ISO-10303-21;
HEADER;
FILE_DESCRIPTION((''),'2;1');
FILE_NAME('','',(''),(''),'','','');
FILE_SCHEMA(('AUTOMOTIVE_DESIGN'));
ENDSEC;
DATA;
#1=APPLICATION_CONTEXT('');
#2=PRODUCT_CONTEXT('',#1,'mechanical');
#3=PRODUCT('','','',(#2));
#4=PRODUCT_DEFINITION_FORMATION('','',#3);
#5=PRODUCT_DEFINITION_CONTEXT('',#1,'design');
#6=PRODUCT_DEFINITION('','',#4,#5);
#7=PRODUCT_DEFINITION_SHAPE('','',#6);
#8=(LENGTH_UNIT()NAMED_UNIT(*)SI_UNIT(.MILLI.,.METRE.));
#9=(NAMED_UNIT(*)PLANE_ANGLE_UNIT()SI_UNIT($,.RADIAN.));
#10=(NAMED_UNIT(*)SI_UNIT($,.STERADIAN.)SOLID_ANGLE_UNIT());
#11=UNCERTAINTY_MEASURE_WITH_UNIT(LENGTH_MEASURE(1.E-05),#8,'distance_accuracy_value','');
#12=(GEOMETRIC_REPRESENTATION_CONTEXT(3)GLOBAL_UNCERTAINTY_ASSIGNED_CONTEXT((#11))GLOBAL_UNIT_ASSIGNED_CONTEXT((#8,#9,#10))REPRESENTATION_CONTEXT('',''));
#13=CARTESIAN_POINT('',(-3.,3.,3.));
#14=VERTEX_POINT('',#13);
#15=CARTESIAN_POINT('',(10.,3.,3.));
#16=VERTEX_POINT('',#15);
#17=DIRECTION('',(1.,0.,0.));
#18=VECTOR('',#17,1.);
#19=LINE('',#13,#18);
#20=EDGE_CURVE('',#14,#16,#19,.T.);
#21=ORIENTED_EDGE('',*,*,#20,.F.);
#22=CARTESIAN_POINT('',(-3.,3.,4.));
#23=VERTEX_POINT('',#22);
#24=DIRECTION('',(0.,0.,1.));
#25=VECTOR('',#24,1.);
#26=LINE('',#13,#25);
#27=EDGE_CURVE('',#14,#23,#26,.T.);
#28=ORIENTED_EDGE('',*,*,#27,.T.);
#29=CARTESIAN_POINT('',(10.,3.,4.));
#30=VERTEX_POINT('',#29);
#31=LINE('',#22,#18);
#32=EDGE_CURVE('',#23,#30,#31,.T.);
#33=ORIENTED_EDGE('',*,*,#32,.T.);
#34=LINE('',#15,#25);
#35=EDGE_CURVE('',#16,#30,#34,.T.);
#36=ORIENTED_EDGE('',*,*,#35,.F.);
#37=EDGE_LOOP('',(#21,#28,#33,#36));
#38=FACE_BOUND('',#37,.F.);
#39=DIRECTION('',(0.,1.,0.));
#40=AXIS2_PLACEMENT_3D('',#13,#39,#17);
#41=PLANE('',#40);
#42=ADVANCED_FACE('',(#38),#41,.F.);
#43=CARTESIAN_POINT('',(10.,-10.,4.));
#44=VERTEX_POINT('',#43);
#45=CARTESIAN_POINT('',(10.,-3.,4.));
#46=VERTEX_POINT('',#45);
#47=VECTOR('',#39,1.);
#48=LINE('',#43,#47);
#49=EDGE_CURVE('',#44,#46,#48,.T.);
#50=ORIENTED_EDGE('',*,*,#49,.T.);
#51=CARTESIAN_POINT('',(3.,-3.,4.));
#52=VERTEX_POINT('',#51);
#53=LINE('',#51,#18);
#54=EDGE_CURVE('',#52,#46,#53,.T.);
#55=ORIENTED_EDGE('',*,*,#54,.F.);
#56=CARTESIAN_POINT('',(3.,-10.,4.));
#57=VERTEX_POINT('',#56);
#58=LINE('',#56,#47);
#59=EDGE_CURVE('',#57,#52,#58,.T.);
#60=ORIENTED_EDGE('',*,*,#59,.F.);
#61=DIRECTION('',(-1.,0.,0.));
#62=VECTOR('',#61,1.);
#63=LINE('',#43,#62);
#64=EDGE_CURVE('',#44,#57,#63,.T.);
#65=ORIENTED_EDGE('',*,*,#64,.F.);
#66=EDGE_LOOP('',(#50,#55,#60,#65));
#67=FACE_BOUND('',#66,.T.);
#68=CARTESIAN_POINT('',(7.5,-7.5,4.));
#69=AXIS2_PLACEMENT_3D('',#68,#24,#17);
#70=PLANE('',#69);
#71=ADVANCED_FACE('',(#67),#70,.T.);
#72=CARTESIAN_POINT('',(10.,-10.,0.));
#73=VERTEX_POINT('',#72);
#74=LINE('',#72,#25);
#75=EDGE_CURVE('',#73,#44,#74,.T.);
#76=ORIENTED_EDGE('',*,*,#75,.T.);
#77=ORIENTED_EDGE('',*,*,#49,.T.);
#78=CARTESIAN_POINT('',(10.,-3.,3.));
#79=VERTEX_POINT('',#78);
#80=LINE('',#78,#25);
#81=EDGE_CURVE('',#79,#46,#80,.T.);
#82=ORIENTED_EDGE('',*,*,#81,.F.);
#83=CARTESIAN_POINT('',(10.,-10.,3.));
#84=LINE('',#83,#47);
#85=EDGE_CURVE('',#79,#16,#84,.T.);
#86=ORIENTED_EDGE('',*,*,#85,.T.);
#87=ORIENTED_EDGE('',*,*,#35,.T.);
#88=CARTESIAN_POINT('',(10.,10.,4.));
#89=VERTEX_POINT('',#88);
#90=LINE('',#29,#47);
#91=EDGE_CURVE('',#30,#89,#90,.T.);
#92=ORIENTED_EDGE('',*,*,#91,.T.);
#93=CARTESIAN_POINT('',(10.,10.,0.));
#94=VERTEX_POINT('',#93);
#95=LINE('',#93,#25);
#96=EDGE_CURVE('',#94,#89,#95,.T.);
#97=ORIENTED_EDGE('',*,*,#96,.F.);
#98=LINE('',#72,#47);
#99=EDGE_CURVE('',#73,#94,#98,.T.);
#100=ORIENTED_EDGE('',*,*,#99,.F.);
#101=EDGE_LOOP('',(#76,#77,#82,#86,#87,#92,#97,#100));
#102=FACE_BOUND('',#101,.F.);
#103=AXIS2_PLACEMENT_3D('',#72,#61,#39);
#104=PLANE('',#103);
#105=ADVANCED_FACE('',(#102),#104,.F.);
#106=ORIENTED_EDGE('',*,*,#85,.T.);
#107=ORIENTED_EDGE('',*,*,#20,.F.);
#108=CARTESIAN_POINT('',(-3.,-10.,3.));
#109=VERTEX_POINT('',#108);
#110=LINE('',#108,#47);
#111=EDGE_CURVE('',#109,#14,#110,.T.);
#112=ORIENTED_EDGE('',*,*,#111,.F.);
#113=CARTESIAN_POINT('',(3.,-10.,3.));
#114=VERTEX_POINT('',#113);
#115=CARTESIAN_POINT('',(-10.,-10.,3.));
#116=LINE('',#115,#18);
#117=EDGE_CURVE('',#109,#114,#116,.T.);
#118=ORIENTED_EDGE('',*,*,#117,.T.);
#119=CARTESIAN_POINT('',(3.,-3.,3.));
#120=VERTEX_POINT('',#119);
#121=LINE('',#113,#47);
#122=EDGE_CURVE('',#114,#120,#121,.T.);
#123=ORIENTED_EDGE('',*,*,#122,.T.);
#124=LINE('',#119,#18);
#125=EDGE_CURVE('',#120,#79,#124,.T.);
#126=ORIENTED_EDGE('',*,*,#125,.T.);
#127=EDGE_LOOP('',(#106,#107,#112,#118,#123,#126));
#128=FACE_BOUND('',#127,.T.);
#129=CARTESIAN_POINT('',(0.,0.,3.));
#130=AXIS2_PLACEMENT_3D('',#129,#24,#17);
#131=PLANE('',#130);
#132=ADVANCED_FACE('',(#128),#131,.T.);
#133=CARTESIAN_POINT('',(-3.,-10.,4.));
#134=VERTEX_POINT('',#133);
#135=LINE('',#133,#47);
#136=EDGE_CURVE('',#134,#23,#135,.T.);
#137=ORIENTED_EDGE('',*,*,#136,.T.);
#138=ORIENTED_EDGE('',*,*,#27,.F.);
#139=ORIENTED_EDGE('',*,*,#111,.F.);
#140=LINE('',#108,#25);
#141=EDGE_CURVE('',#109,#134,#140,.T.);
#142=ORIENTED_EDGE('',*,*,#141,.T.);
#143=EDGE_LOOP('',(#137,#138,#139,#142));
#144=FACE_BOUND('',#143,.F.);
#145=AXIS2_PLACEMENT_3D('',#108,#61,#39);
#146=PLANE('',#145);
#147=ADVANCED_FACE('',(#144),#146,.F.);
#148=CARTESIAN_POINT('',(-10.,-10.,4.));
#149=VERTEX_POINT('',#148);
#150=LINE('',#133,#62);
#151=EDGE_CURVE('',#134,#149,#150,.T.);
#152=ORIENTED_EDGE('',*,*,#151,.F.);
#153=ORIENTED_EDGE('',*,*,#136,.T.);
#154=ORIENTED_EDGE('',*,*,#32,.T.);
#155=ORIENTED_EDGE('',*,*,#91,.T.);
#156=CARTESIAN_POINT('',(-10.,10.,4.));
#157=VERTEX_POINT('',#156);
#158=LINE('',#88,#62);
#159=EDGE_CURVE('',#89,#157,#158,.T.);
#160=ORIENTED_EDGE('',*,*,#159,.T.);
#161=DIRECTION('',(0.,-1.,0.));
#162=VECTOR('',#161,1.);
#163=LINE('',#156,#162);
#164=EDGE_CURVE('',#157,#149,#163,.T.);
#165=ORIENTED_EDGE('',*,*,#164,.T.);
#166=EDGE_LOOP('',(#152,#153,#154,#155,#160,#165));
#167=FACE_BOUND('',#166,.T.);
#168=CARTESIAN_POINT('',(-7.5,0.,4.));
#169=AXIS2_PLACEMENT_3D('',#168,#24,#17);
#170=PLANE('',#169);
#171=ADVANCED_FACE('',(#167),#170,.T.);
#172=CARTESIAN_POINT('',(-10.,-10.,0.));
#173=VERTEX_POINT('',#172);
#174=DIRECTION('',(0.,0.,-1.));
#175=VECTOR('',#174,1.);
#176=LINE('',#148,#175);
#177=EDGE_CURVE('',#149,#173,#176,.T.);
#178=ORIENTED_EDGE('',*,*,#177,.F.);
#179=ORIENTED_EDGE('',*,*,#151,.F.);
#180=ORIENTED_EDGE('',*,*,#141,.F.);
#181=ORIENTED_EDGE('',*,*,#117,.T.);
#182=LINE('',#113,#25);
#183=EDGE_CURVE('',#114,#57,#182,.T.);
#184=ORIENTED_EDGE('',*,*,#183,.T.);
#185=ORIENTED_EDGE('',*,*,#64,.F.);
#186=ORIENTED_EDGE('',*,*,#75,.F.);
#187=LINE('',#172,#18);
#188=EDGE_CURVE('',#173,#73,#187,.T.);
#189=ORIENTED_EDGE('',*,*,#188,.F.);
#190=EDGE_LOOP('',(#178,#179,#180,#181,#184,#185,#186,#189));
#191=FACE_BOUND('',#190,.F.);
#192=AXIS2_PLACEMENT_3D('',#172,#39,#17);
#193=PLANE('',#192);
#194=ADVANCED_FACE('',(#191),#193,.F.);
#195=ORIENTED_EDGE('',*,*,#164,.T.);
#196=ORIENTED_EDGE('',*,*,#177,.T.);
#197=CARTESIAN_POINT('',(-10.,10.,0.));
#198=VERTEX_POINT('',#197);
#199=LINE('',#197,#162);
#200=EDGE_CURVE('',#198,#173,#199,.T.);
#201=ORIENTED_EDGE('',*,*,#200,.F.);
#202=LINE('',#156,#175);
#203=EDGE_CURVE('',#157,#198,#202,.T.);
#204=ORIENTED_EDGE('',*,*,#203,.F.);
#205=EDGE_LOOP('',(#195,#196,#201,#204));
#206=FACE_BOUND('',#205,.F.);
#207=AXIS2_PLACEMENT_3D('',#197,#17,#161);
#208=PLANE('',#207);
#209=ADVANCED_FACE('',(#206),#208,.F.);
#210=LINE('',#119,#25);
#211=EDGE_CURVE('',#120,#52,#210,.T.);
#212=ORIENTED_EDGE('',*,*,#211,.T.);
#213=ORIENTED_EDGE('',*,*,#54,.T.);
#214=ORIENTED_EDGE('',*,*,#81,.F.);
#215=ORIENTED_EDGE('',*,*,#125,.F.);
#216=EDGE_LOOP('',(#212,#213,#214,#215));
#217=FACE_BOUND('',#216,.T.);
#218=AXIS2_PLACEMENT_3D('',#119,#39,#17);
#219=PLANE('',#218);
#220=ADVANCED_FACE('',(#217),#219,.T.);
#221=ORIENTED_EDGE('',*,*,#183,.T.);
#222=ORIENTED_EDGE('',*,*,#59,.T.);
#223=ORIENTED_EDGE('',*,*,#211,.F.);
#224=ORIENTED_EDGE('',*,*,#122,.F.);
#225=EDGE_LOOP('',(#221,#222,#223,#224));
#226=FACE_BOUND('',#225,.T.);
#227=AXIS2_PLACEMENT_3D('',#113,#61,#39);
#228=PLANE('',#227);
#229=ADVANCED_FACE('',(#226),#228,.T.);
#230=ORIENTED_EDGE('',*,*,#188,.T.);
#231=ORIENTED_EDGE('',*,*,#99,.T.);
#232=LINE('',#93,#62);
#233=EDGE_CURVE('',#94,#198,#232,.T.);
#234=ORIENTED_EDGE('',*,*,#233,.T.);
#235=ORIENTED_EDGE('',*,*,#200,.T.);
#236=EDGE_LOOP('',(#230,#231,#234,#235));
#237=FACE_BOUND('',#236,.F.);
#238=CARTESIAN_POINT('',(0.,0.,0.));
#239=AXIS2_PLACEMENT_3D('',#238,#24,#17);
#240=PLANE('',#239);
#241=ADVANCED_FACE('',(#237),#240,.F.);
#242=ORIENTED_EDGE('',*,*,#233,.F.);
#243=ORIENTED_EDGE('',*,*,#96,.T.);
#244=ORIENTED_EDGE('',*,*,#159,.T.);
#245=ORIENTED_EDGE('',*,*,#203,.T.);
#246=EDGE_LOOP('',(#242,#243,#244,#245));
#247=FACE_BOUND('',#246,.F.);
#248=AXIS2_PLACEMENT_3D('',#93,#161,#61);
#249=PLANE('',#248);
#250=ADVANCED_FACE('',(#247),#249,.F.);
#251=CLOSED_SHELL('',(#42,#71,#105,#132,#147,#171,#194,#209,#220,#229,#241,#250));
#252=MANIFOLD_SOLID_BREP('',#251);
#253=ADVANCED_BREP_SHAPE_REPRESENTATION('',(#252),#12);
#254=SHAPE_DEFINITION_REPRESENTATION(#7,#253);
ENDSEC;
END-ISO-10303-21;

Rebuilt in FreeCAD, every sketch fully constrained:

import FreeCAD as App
import Part
import Sketcher
from FreeCAD import Vector
Q = App.Units.Quantity

doc = App.newDocument("Part")
body = doc.addObject("PartDesign::Body", "Body")

sketch1 = doc.addObject("Sketcher::SketchObject", "Sketch")
body.addObject(sketch1)
sketch1.AttachmentSupport = (doc.XY_Plane, [""])
sketch1.MapMode = "FlatFace"
sketch1.addGeometry([
    Part.LineSegment(Vector(-10, 10, 0), Vector(-10, -10, 0)),
    Part.LineSegment(Vector(-10, -10, 0), Vector(10, -10, 0)),
    Part.LineSegment(Vector(10, -10, 0), Vector(10, 10, 0)),
    Part.LineSegment(Vector(10, 10, 0), Vector(-10, 10, 0)),
], False)
sketch1.addConstraint([
    Sketcher.Constraint("Coincident", 0, 2, 1, 1),
    Sketcher.Constraint("Coincident", 1, 2, 2, 1),
    Sketcher.Constraint("Coincident", 2, 2, 3, 1),
    Sketcher.Constraint("Coincident", 3, 2, 0, 1),
    Sketcher.Constraint("Vertical", 0),
    Sketcher.Constraint("Horizontal", 1),
    Sketcher.Constraint("Vertical", 2),
    Sketcher.Constraint("Horizontal", 3),
    Sketcher.Constraint("Symmetric", 0, 2, 2, 2, -1, 1),
    Sketcher.Constraint("Equal", 3, 0),
    Sketcher.Constraint("DistanceX", 1, 1, 1, 2, Q("20 mm")),
])
pad1 = doc.addObject("PartDesign::Pad", "Pad")
body.addObject(pad1)
pad1.Profile = sketch1
pad1.Length = 3

sketch2 = doc.addObject("Sketcher::SketchObject", "Sketch001")
body.addObject(sketch2)
sketch2.AttachmentSupport = (doc.XY_Plane, [""])
sketch2.MapMode = "FlatFace"
sketch2.AttachmentOffset = App.Placement(Vector(0, 0, 3), App.Rotation())
sketch2.addGeometry([
    Part.LineSegment(Vector(-10, 10, 0), Vector(-10, -10, 0)),
    Part.LineSegment(Vector(-10, -10, 0), Vector(-5, -10, 0)),
    Part.LineSegment(Vector(-5, -10, 0), Vector(-5, 10, 0)),
    Part.LineSegment(Vector(-5, 10, 0), Vector(-10, 10, 0)),
], False)
sketch2.addConstraint([
    Sketcher.Constraint("Coincident", 0, 2, 1, 1),
    Sketcher.Constraint("Coincident", 1, 2, 2, 1),
    Sketcher.Constraint("Coincident", 2, 2, 3, 1),
    Sketcher.Constraint("Coincident", 3, 2, 0, 1),
    Sketcher.Constraint("Vertical", 0),
    Sketcher.Constraint("Horizontal", 1),
    Sketcher.Constraint("Vertical", 2),
    Sketcher.Constraint("Horizontal", 3),
    Sketcher.Constraint("DistanceX", 1, 1, 1, 2, Q("5 mm")),
    Sketcher.Constraint("DistanceY", 0, 2, 0, 1, Q("20 mm")),
    Sketcher.Constraint("DistanceX", 0, 2, -1, 1, Q("10 mm")),
    Sketcher.Constraint("DistanceY", 0, 2, -1, 1, Q("10 mm")),
])
pad2 = doc.addObject("PartDesign::Pad", "Pad001")
body.addObject(pad2)
pad2.Profile = sketch2
pad2.Length = 1

sketch3 = doc.addObject("Sketcher::SketchObject", "Sketch002")
body.addObject(sketch3)
sketch3.AttachmentSupport = (doc.XY_Plane, [""])
sketch3.MapMode = "FlatFace"
sketch3.AttachmentOffset = App.Placement(Vector(0, 0, 3), App.Rotation())
sketch3.addGeometry([
    Part.LineSegment(Vector(10, 10, 0), Vector(-5, 10, 0)),
    Part.LineSegment(Vector(-5, 10, 0), Vector(-5, 5, 0)),
    Part.LineSegment(Vector(-5, 5, 0), Vector(10, 5, 0)),
    Part.LineSegment(Vector(10, 5, 0), Vector(10, 10, 0)),
], False)
sketch3.addConstraint([
    Sketcher.Constraint("Coincident", 0, 2, 1, 1),
    Sketcher.Constraint("Coincident", 1, 2, 2, 1),
    Sketcher.Constraint("Coincident", 2, 2, 3, 1),
    Sketcher.Constraint("Coincident", 3, 2, 0, 1),
    Sketcher.Constraint("Horizontal", 0),
    Sketcher.Constraint("Vertical", 1),
    Sketcher.Constraint("Horizontal", 2),
    Sketcher.Constraint("Vertical", 3),
    Sketcher.Constraint("DistanceX", 0, 2, 0, 1, Q("15 mm")),
    Sketcher.Constraint("DistanceY", 1, 2, 1, 1, Q("5 mm")),
    Sketcher.Constraint("DistanceX", 0, 2, -1, 1, Q("5 mm")),
    Sketcher.Constraint("DistanceY", -1, 1, 0, 2, Q("10 mm")),
])
pad3 = doc.addObject("PartDesign::Pad", "Pad002")
body.addObject(pad3)
pad3.Profile = sketch3
pad3.Length = 1

sketch4 = doc.addObject("Sketcher::SketchObject", "Sketch003")
body.addObject(sketch4)
sketch4.AttachmentSupport = (doc.XY_Plane, [""])
sketch4.MapMode = "FlatFace"
sketch4.AttachmentOffset = App.Placement(Vector(0, 0, 3), App.Rotation())
sketch4.addGeometry([
    Part.LineSegment(Vector(5, -10, 0), Vector(10, -10, 0)),
    Part.LineSegment(Vector(10, -10, 0), Vector(10, -5, 0)),
    Part.LineSegment(Vector(10, -5, 0), Vector(5, -5, 0)),
    Part.LineSegment(Vector(5, -5, 0), Vector(5, -10, 0)),
], False)
sketch4.addConstraint([
    Sketcher.Constraint("Coincident", 0, 2, 1, 1),
    Sketcher.Constraint("Coincident", 1, 2, 2, 1),
    Sketcher.Constraint("Coincident", 2, 2, 3, 1),
    Sketcher.Constraint("Coincident", 3, 2, 0, 1),
    Sketcher.Constraint("Horizontal", 0),
    Sketcher.Constraint("Vertical", 1),
    Sketcher.Constraint("Horizontal", 2),
    Sketcher.Constraint("Vertical", 3),
    Sketcher.Constraint("Equal", 2, 1),
    Sketcher.Constraint("DistanceX", 0, 1, 0, 2, Q("5 mm")),
    Sketcher.Constraint("DistanceX", -1, 1, 0, 2, Q("10 mm")),
    Sketcher.Constraint("DistanceY", 0, 2, -1, 1, Q("10 mm")),
])
pad4 = doc.addObject("PartDesign::Pad", "Pad003")
body.addObject(pad4)
pad4.Profile = sketch4
pad4.Length = 1

sketch5 = doc.addObject("Sketcher::SketchObject", "Sketch004")
body.addObject(sketch5)
sketch5.AttachmentSupport = (doc.XY_Plane, [""])
sketch5.MapMode = "FlatFace"
sketch5.AttachmentOffset = App.Placement(Vector(0, 0, 3), App.Rotation())
sketch5.addGeometry([
    Part.LineSegment(Vector(4, -10, 0), Vector(5, -10, 0)),
    Part.LineSegment(Vector(5, -10, 0), Vector(5, -5, 0)),
    Part.LineSegment(Vector(5, -5, 0), Vector(10, -5, 0)),
    Part.LineSegment(Vector(10, -5, 0), Vector(10, -4, 0)),
    Part.LineSegment(Vector(10, -4, 0), Vector(4, -4, 0)),
    Part.LineSegment(Vector(4, -4, 0), Vector(4, -10, 0)),
], False)
sketch5.addConstraint([
    Sketcher.Constraint("Coincident", 0, 2, 1, 1),
    Sketcher.Constraint("Coincident", 1, 2, 2, 1),
    Sketcher.Constraint("Coincident", 2, 2, 3, 1),
    Sketcher.Constraint("Coincident", 3, 2, 4, 1),
    Sketcher.Constraint("Coincident", 4, 2, 5, 1),
    Sketcher.Constraint("Coincident", 5, 2, 0, 1),
    Sketcher.Constraint("Horizontal", 0),
    Sketcher.Constraint("Vertical", 1),
    Sketcher.Constraint("Horizontal", 2),
    Sketcher.Constraint("Vertical", 3),
    Sketcher.Constraint("Horizontal", 4),
    Sketcher.Constraint("Vertical", 5),
    Sketcher.Constraint("Equal", 2, 1),
    Sketcher.Constraint("Equal", 0, 3),
    Sketcher.Constraint("DistanceX", 0, 1, 0, 2, Q("1 mm")),
    Sketcher.Constraint("DistanceX", 2, 1, 2, 2, Q("5 mm")),
    Sketcher.Constraint("DistanceX", -1, 1, 0, 2, Q("5 mm")),
    Sketcher.Constraint("DistanceY", 0, 2, -1, 1, Q("10 mm")),
])
pad5 = doc.addObject("PartDesign::Pad", "Pad004")
body.addObject(pad5)
pad5.Profile = sketch5
pad5.Length = 1

sketch6 = doc.addObject("Sketcher::SketchObject", "Sketch005")
body.addObject(sketch6)
sketch6.AttachmentSupport = (doc.XY_Plane, [""])
sketch6.MapMode = "FlatFace"
sketch6.AttachmentOffset = App.Placement(Vector(0, 0, 3), App.Rotation())
sketch6.addGeometry([
    Part.LineSegment(Vector(-5, 5, 0), Vector(-5, -10, 0)),
    Part.LineSegment(Vector(-5, -10, 0), Vector(-4, -10, 0)),
    Part.LineSegment(Vector(-4, -10, 0), Vector(-4, 4, 0)),
    Part.LineSegment(Vector(-4, 4, 0), Vector(10, 4, 0)),
    Part.LineSegment(Vector(10, 4, 0), Vector(10, 5, 0)),
    Part.LineSegment(Vector(10, 5, 0), Vector(-5, 5, 0)),
], False)
sketch6.addConstraint([
    Sketcher.Constraint("Coincident", 0, 2, 1, 1),
    Sketcher.Constraint("Coincident", 1, 2, 2, 1),
    Sketcher.Constraint("Coincident", 2, 2, 3, 1),
    Sketcher.Constraint("Coincident", 3, 2, 4, 1),
    Sketcher.Constraint("Coincident", 4, 2, 5, 1),
    Sketcher.Constraint("Coincident", 5, 2, 0, 1),
    Sketcher.Constraint("Vertical", 0),
    Sketcher.Constraint("Horizontal", 1),
    Sketcher.Constraint("Vertical", 2),
    Sketcher.Constraint("Horizontal", 3),
    Sketcher.Constraint("Vertical", 4),
    Sketcher.Constraint("Horizontal", 5),
    Sketcher.Constraint("Equal", 5, 0),
    Sketcher.Constraint("Equal", 3, 2),
    Sketcher.Constraint("DistanceX", 1, 1, 1, 2, Q("1 mm")),
    Sketcher.Constraint("DistanceX", 3, 1, 3, 2, Q("14 mm")),
    Sketcher.Constraint("DistanceX", 0, 2, -1, 1, Q("5 mm")),
    Sketcher.Constraint("DistanceY", 0, 2, -1, 1, Q("10 mm")),
])
pad6 = doc.addObject("PartDesign::Pad", "Pad005")
body.addObject(pad6)
pad6.Profile = sketch6
pad6.Length = 1

sketch7 = doc.addObject("Sketcher::SketchObject", "Sketch006")
body.addObject(sketch7)
sketch7.AttachmentSupport = (doc.XY_Plane, [""])
sketch7.MapMode = "FlatFace"
sketch7.AttachmentOffset = App.Placement(Vector(0, 0, 3), App.Rotation())
sketch7.addGeometry([
    Part.LineSegment(Vector(-4, 4, 0), Vector(-4, -10, 0)),
    Part.LineSegment(Vector(-4, -10, 0), Vector(-3, -10, 0)),
    Part.LineSegment(Vector(-3, -10, 0), Vector(-3, 3, 0)),
    Part.LineSegment(Vector(-3, 3, 0), Vector(10, 3, 0)),
    Part.LineSegment(Vector(10, 3, 0), Vector(10, 4, 0)),
    Part.LineSegment(Vector(10, 4, 0), Vector(-4, 4, 0)),
], False)
sketch7.addConstraint([
    Sketcher.Constraint("Coincident", 0, 2, 1, 1),
    Sketcher.Constraint("Coincident", 1, 2, 2, 1),
    Sketcher.Constraint("Coincident", 2, 2, 3, 1),
    Sketcher.Constraint("Coincident", 3, 2, 4, 1),
    Sketcher.Constraint("Coincident", 4, 2, 5, 1),
    Sketcher.Constraint("Coincident", 5, 2, 0, 1),
    Sketcher.Constraint("Vertical", 0),
    Sketcher.Constraint("Horizontal", 1),
    Sketcher.Constraint("Vertical", 2),
    Sketcher.Constraint("Horizontal", 3),
    Sketcher.Constraint("Vertical", 4),
    Sketcher.Constraint("Horizontal", 5),
    Sketcher.Constraint("Equal", 5, 0),
    Sketcher.Constraint("Equal", 3, 2),
    Sketcher.Constraint("DistanceX", 1, 1, 1, 2, Q("1 mm")),
    Sketcher.Constraint("DistanceX", 3, 1, 3, 2, Q("13 mm")),
    Sketcher.Constraint("DistanceX", 0, 2, -1, 1, Q("4 mm")),
    Sketcher.Constraint("DistanceY", 0, 2, -1, 1, Q("10 mm")),
])
pad7 = doc.addObject("PartDesign::Pad", "Pad006")
body.addObject(pad7)
pad7.Profile = sketch7
pad7.Length = 1

sketch8 = doc.addObject("Sketcher::SketchObject", "Sketch007")
body.addObject(sketch8)
sketch8.AttachmentSupport = (doc.XY_Plane, [""])
sketch8.MapMode = "FlatFace"
sketch8.AttachmentOffset = App.Placement(Vector(0, 0, 3), App.Rotation())
sketch8.addGeometry([
    Part.LineSegment(Vector(3, -10, 0), Vector(4, -10, 0)),
    Part.LineSegment(Vector(4, -10, 0), Vector(4, -4, 0)),
    Part.LineSegment(Vector(4, -4, 0), Vector(10, -4, 0)),
    Part.LineSegment(Vector(10, -4, 0), Vector(10, -3, 0)),
    Part.LineSegment(Vector(10, -3, 0), Vector(3, -3, 0)),
    Part.LineSegment(Vector(3, -3, 0), Vector(3, -10, 0)),
], False)
sketch8.addConstraint([
    Sketcher.Constraint("Coincident", 0, 2, 1, 1),
    Sketcher.Constraint("Coincident", 1, 2, 2, 1),
    Sketcher.Constraint("Coincident", 2, 2, 3, 1),
    Sketcher.Constraint("Coincident", 3, 2, 4, 1),
    Sketcher.Constraint("Coincident", 4, 2, 5, 1),
    Sketcher.Constraint("Coincident", 5, 2, 0, 1),
    Sketcher.Constraint("Horizontal", 0),
    Sketcher.Constraint("Vertical", 1),
    Sketcher.Constraint("Horizontal", 2),
    Sketcher.Constraint("Vertical", 3),
    Sketcher.Constraint("Horizontal", 4),
    Sketcher.Constraint("Vertical", 5),
    Sketcher.Constraint("Equal", 2, 1),
    Sketcher.Constraint("Equal", 0, 3),
    Sketcher.Constraint("DistanceX", 0, 1, 0, 2, Q("1 mm")),
    Sketcher.Constraint("DistanceX", 2, 1, 2, 2, Q("6 mm")),
    Sketcher.Constraint("DistanceX", -1, 1, 0, 2, Q("4 mm")),
    Sketcher.Constraint("DistanceY", 0, 2, -1, 1, Q("10 mm")),
])
pad8 = doc.addObject("PartDesign::Pad", "Pad007")
body.addObject(pad8)
pad8.Profile = sketch8
pad8.Length = 1

doc.recompute()
